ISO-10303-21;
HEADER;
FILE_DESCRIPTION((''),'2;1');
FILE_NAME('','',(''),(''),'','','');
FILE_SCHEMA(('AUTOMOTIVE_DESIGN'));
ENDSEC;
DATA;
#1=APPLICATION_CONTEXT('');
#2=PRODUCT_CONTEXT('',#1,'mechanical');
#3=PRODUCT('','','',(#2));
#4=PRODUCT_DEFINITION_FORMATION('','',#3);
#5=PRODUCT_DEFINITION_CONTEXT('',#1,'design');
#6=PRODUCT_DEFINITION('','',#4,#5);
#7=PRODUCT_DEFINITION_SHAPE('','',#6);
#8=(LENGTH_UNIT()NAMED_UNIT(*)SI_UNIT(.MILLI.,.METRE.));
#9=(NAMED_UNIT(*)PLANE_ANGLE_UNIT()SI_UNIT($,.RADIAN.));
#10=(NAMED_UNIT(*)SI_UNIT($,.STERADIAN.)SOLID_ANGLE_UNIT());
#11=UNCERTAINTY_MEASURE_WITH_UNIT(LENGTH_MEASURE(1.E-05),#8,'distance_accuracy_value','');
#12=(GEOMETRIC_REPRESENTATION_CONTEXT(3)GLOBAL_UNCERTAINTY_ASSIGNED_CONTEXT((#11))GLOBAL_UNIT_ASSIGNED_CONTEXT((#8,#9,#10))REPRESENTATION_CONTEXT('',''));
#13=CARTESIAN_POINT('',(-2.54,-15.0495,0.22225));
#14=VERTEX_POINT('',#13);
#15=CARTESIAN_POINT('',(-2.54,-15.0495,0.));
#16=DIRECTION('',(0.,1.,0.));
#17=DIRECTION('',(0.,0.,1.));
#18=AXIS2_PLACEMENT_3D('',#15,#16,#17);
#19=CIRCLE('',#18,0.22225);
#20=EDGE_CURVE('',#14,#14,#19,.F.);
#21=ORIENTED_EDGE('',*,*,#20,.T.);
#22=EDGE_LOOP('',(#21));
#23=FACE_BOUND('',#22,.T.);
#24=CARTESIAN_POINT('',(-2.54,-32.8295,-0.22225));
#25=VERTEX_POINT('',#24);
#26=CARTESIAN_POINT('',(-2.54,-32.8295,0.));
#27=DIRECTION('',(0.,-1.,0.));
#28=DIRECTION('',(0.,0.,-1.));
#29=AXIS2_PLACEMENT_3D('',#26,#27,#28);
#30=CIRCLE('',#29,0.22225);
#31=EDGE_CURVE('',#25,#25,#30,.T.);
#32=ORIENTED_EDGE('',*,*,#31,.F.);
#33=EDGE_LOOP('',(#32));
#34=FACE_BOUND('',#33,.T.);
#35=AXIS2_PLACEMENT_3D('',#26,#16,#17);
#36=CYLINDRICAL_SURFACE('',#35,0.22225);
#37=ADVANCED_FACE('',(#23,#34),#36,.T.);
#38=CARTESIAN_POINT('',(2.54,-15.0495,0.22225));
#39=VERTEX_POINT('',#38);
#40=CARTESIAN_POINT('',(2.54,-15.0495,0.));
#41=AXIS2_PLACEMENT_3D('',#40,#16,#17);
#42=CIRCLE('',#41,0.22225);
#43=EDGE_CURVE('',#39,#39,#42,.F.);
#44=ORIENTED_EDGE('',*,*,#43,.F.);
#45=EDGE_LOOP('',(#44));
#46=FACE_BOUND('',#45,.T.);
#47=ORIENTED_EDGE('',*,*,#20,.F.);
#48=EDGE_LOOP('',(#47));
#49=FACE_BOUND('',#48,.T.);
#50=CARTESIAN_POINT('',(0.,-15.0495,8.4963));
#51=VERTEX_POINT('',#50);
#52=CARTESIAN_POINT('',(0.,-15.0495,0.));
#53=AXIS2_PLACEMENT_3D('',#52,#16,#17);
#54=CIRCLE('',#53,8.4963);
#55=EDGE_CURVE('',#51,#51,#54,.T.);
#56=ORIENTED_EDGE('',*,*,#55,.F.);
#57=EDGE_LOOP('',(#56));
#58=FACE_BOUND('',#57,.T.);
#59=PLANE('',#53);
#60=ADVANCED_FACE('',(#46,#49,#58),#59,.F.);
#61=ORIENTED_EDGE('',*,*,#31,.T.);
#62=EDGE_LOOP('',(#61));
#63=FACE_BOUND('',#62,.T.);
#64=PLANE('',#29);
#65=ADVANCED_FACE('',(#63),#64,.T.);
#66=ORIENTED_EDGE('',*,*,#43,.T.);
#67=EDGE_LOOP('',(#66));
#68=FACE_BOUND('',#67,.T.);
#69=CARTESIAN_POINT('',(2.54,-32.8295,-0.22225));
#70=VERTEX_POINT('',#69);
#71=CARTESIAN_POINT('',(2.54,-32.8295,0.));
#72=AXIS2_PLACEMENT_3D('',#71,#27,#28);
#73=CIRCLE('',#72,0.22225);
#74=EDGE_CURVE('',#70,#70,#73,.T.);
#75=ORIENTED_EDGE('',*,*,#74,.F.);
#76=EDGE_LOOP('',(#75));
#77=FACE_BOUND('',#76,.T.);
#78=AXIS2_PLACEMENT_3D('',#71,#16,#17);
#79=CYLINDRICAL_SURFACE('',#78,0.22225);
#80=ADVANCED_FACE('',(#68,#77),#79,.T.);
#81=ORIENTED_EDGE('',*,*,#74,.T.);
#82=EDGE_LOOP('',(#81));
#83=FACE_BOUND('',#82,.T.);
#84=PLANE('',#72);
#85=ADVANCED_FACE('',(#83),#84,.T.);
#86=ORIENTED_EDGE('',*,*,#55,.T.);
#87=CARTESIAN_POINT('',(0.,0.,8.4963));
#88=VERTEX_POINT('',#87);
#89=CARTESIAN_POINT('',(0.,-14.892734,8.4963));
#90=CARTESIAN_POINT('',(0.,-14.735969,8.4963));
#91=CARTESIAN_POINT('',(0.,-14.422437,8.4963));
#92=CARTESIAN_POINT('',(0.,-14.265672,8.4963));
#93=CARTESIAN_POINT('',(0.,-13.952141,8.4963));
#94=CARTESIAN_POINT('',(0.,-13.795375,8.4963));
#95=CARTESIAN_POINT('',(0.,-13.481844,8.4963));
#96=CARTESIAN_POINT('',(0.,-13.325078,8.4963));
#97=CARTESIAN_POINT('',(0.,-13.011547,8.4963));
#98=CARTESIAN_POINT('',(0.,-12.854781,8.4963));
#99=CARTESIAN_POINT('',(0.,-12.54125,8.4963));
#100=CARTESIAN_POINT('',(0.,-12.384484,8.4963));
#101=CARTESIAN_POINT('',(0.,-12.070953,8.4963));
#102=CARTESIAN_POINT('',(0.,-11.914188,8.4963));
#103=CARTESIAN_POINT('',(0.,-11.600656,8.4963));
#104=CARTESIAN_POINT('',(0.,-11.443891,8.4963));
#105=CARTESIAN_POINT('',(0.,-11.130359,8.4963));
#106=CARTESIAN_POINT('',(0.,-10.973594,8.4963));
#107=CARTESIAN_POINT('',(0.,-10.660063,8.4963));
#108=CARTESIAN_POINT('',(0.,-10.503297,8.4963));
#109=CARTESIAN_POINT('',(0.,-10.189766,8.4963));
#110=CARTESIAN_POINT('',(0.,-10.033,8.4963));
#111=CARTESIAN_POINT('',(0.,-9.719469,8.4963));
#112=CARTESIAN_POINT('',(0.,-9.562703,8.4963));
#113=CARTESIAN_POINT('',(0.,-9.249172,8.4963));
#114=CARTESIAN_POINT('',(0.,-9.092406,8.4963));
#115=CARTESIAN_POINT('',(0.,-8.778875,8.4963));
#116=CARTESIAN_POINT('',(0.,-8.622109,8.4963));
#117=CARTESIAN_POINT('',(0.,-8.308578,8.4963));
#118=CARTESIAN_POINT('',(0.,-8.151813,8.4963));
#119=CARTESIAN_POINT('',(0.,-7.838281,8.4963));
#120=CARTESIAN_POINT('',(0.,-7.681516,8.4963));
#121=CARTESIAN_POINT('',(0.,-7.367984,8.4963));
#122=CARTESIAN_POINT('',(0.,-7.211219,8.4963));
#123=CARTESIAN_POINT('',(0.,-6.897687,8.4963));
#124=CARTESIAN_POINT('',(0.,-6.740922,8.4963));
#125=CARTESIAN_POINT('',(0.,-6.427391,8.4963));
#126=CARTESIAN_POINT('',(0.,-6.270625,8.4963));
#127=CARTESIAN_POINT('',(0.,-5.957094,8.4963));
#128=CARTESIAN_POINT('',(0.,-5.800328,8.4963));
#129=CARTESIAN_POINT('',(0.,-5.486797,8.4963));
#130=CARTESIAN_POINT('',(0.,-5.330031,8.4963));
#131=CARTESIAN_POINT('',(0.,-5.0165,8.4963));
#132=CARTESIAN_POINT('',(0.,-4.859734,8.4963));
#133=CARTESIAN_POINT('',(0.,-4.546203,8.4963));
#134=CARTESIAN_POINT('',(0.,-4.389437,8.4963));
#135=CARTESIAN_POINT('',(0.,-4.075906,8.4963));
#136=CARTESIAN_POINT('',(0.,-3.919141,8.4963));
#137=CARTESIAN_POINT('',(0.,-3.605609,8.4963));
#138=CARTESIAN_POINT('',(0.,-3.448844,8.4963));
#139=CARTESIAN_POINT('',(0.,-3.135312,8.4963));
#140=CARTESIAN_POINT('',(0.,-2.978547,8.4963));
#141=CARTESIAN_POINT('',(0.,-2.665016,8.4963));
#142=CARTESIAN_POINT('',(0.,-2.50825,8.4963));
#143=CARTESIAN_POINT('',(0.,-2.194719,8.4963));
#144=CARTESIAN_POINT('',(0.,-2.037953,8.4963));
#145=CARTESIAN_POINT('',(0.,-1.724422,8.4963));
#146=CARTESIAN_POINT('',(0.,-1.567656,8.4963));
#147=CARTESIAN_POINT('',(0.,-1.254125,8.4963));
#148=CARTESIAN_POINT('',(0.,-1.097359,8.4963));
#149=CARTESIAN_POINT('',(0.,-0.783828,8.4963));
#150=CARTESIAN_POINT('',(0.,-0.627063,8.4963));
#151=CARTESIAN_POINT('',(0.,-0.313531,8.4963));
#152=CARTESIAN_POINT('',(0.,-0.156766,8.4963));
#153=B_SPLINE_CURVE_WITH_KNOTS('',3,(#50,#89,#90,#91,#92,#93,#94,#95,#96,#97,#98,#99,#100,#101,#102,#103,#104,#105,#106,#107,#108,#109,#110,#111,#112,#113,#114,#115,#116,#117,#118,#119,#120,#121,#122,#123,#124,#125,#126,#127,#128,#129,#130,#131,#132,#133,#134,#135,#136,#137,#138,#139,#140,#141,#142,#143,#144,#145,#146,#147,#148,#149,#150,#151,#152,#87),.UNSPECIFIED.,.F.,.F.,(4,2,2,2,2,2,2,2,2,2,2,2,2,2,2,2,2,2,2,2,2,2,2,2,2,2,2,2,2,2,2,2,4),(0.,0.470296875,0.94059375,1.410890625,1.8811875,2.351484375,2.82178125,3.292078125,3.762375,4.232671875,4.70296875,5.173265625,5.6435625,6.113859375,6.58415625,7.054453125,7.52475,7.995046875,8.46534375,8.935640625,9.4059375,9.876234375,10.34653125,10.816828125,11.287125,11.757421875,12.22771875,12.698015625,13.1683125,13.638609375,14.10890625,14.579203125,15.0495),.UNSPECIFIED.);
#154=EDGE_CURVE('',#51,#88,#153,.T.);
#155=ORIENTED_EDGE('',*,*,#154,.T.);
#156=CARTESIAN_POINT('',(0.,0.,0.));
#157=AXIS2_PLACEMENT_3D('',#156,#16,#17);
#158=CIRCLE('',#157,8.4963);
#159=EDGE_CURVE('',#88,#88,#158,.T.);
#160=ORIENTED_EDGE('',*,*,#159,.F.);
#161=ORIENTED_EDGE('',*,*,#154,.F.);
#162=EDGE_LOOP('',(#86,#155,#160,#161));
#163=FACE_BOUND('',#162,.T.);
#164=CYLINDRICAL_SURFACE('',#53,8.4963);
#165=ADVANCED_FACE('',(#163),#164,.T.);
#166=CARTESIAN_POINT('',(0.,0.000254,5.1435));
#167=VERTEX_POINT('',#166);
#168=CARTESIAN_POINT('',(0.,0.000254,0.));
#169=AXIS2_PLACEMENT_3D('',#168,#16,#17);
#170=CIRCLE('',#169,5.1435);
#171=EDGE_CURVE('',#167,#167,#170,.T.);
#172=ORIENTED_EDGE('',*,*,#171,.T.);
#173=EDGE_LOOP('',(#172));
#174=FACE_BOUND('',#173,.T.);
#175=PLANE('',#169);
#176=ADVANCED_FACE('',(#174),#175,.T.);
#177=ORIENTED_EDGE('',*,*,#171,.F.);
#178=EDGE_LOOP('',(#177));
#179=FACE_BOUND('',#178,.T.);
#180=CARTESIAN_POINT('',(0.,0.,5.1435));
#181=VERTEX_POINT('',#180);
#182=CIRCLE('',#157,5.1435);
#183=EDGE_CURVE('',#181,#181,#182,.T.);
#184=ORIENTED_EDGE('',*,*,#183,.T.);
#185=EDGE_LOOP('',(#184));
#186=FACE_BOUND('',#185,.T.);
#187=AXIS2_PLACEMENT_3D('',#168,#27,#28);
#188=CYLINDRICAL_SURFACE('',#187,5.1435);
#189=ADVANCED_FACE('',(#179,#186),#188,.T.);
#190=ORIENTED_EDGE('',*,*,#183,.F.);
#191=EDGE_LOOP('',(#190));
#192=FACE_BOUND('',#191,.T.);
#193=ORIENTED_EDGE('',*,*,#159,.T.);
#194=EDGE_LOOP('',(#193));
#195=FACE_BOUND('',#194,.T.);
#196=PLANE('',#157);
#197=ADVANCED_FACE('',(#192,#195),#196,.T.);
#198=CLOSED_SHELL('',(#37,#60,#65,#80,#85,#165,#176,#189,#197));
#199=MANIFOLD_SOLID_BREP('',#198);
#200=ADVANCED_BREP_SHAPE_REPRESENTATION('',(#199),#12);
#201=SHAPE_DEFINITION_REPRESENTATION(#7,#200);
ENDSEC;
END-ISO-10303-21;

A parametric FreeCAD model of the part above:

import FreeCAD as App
import Part
import Sketcher
from FreeCAD import Vector
Q = App.Units.Quantity

doc = App.newDocument("Part")
body = doc.addObject("PartDesign::Body", "Body")

sketch1 = body.newObject("Sketcher::SketchObject", "Sketch")
sketch1.AttachmentSupport = (doc.getObject("XZ_Plane"), [""])
sketch1.MapMode = "FlatFace"
sketch1.addGeometry(Part.Circle(Vector(0, 0, 0), Vector(0, 0, 1), 8), False)
sketch1.addConstraint([
    Sketcher.Constraint("Coincident", 0, 3, -1, 1),
    Sketcher.Constraint("Diameter", 0, Q("0.669 in")),
])
pad1 = body.newObject("PartDesign::Pad", "Pad")
pad1.Profile = sketch1
pad1.Length = Q("0.5925 in")

sketch2 = body.newObject("Sketcher::SketchObject", "Sketch001")
sketch2.AttachmentSupport = (doc.getObject("XZ_Plane"), [""])
sketch2.MapMode = "FlatFace"
sketch2.AttachmentOffset = App.Placement(Vector(0, 0, 0.5925 * 25.4), App.Rotation())
sketch2.addGeometry([
    Part.Circle(Vector(-2.54, 0, 0), Vector(0, 0, 1), 0.22),
    Part.Circle(Vector(2.54, 0, 0), Vector(0, 0, 1), 0.22),
], False)
sketch2.addConstraint([
    Sketcher.Constraint("Equal", 0, 1),
    Sketcher.Constraint("Symmetric", 0, 3, 1, 3, -1, 1),
    Sketcher.Constraint("PointOnObject", 0, 3, -1),
    Sketcher.Constraint("Diameter", 0, Q("0.0175 in")),
    Sketcher.Constraint("DistanceX", 0, 3, -1, 1, Q("0.1 in")),
])
pad2 = body.newObject("PartDesign::Pad", "Pad001")
pad2.Profile = sketch2
pad2.Length = Q("0.7 in")

sketch3 = body.newObject("Sketcher::SketchObject", "Sketch002")
sketch3.AttachmentSupport = (doc.getObject("XZ_Plane"), [""])
sketch3.MapMode = "FlatFace"
sketch3.addGeometry(Part.Circle(Vector(0, 0, 0), Vector(0, 0, 1), 5), False)
sketch3.addConstraint([
    Sketcher.Constraint("Coincident", 0, 3, -1, 1),
    Sketcher.Constraint("Diameter", 0, Q("0.405 in")),
])
pad3 = body.newObject("PartDesign::Pad", "Pad002")
pad3.Profile = sketch3
pad3.Length = 0.000254
pad3.Reversed = True

doc.recompute()
